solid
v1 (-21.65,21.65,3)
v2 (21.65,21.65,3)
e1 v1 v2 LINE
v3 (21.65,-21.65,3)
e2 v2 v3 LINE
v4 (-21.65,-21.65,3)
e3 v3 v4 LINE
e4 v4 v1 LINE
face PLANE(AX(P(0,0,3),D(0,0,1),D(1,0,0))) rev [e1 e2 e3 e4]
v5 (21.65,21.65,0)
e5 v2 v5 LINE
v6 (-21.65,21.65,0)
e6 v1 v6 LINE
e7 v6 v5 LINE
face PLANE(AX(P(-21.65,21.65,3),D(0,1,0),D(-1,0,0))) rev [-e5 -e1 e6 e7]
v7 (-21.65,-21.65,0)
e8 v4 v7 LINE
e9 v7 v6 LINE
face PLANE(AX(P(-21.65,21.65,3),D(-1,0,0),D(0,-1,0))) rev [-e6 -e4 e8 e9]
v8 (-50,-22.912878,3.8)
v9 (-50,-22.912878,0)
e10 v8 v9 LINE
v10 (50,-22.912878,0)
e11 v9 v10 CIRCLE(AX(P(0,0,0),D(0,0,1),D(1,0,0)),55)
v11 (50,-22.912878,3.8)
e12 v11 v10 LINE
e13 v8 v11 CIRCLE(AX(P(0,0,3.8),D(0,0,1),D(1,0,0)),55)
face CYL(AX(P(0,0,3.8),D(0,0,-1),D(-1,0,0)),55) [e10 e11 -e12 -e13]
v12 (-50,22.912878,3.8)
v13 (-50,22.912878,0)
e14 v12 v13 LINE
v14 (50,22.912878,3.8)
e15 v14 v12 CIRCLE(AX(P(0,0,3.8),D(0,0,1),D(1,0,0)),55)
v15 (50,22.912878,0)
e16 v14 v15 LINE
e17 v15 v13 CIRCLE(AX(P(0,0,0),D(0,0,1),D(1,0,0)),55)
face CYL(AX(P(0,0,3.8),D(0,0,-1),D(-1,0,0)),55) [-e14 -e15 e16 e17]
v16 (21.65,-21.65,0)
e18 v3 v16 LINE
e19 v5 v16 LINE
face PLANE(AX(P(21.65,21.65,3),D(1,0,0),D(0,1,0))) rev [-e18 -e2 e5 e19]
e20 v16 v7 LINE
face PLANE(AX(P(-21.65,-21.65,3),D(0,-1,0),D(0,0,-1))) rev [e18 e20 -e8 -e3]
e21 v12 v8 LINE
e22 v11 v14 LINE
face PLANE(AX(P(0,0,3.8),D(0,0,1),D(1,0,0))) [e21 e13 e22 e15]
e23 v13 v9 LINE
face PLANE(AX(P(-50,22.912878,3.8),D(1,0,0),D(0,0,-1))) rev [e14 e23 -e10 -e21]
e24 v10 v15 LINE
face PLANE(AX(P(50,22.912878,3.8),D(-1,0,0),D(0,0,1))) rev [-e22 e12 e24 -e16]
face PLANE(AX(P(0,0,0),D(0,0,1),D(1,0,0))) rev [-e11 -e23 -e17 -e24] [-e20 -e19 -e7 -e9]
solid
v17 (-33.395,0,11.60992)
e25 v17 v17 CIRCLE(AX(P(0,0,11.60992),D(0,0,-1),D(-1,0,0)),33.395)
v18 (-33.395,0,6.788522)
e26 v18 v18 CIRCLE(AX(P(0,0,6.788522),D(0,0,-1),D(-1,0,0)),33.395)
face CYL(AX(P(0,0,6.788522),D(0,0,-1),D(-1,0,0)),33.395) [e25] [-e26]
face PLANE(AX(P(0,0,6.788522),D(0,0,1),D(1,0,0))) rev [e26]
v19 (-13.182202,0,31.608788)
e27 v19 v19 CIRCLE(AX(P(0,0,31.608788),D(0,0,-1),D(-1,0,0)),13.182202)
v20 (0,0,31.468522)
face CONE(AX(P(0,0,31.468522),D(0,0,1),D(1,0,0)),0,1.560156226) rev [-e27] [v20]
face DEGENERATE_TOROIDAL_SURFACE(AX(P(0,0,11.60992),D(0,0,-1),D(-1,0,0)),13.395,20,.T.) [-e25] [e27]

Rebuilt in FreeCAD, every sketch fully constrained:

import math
import FreeCAD as App
import Part
import Sketcher


def add_polygon(sketch, points):
    """Adds a closed chain of lines whose ends are joined by coincident constraints."""
    first, n = sketch.GeometryCount, len(points)
    for a, b in zip(points, points[1:] + points[:1]):
        sketch.addGeometry(Part.LineSegment(App.Vector(*a, 0), App.Vector(*b, 0)), False)
    for i in range(n):
        sketch.addConstraint(Sketcher.Constraint("Coincident", first + i, 2, first + (i + 1) % n, 1))

doc = App.newDocument("Part")
body = doc.addObject("PartDesign::Body", "Body")

sketch1 = doc.addObject("Sketcher::SketchObject", "Sketch")
body.addObject(sketch1)
sketch1.AttachmentSupport = (doc.XY_Plane, [""])
sketch1.MapMode = "FlatFace"
sketch1.addGeometry([
    Part.LineSegment(App.Vector(50, -23, 0), App.Vector(50, 23, 0)),
    Part.ArcOfCircle(Part.Circle(App.Vector(0, 0, 0), App.Vector(0, 0, 1), 55), math.radians(25), math.radians(155)),
    Part.LineSegment(App.Vector(-50, 23, 0), App.Vector(-50, -23, 0)),
    Part.ArcOfCircle(Part.Circle(App.Vector(0, 0, 0), App.Vector(0, 0, 1), 55), math.radians(-155), math.radians(-25)),
], False)
sketch1.addConstraint([
    Sketcher.Constraint("Coincident", 0, 2, 1, 1),
    Sketcher.Constraint("Coincident", 1, 2, 2, 1),
    Sketcher.Constraint("Coincident", 2, 2, 3, 1),
    Sketcher.Constraint("Coincident", 3, 2, 0, 1),
    Sketcher.Constraint("Vertical", 0),
    Sketcher.Constraint("Vertical", 2),
    Sketcher.Constraint("Coincident", 1, 3, -1, 1),
    Sketcher.Constraint("Coincident", 3, 3, -1, 1),
    Sketcher.Constraint("Equal", 1, 3),
    Sketcher.Constraint("Horizontal", 0, 2, 1, 2),
    Sketcher.Constraint("Radius", 1, 55.0),
    Sketcher.Constraint("DistanceX", -1, 1, 0, 2, 50.0),
])
pad1 = doc.addObject("PartDesign::Pad", "Pad")
body.addObject(pad1)
pad1.Profile = sketch1
pad1.Length = 3.8

sketch2 = doc.addObject("Sketcher::SketchObject", "Sketch001")
body.addObject(sketch2)
sketch2.AttachmentSupport = (doc.XY_Plane, [""])
sketch2.MapMode = "FlatFace"
add_polygon(sketch2, [(22, 22), (22, -22), (-22, -22), (-22, 22)])
sketch2.addConstraint([
    Sketcher.Constraint("Vertical", 0),
    Sketcher.Constraint("Horizontal", 1),
    Sketcher.Constraint("Vertical", 2),
    Sketcher.Constraint("Horizontal", 3),
    Sketcher.Constraint("Symmetric", 0, 2, 2, 2, -1, 1),
    Sketcher.Constraint("Equal", 3, 0),
    Sketcher.Constraint("DistanceX", 1, 2, 1, 1, 43.3),
])
pocket1 = doc.addObject("PartDesign::Pocket", "Pocket")
body.addObject(pocket1)
pocket1.Profile = sketch2
pocket1.Length = 3
pocket1.Reversed = True
body2 = doc.addObject("PartDesign::Body", "Body001")

sketch3 = doc.addObject("Sketcher::SketchObject", "Sketch002")
body2.addObject(sketch3)
sketch3.AttachmentSupport = (doc.getObject("XZ_Plane001"), [""])
sketch3.MapMode = "FlatFace"
sketch3.addGeometry([
    Part.LineSegment(App.Vector(0, 6.8, 0), App.Vector(0, 31.5, 0)),
    Part.LineSegment(App.Vector(0, 31.5, 0), App.Vector(13.2, 31.6, 0)),
    Part.ArcOfCircle(Part.Circle(App.Vector(13.4, 11.6, 0), App.Vector(0, 0, 1), 20), math.radians(0), math.radians(91)),
    Part.LineSegment(App.Vector(33.4, 11.6, 0), App.Vector(33.4, 6.8, 0)),
    Part.LineSegment(App.Vector(33.4, 6.8, 0), App.Vector(0, 6.8, 0)),
], False)
sketch3.addConstraint([
    Sketcher.Constraint("Coincident", 0, 2, 1, 1),
    Sketcher.Constraint("Tangent", 1, 2, 2, 2),
    Sketcher.Constraint("Tangent", 2, 1, 3, 1),
    Sketcher.Constraint("Coincident", 3, 2, 4, 1),
    Sketcher.Constraint("Coincident", 4, 2, 0, 1),
    Sketcher.Constraint("Vertical", 0),
    Sketcher.Constraint("Vertical", 3),
    Sketcher.Constraint("Horizontal", 4),
    Sketcher.Constraint("PointOnObject", 0, 2, -2),
    Sketcher.Constraint("Radius", 2, 20.0),
    Sketcher.Constraint("DistanceY", 0, 1, 0, 2, 24.68),
    Sketcher.Constraint("DistanceX", 4, 2, 4, 1, 33.395),
    Sketcher.Constraint("DistanceX", -1, 1, 1, 2, 13.182202),
    Sketcher.Constraint("DistanceY", -1, 1, 2, 3, 11.60992),
])
revolution = doc.addObject("PartDesign::Revolution", "Revolution")
body2.addObject(revolution)
revolution.Profile = sketch3
revolution.ReferenceAxis = (sketch3, ["V_Axis"])
revolution.Angle = 360

doc.recompute()
